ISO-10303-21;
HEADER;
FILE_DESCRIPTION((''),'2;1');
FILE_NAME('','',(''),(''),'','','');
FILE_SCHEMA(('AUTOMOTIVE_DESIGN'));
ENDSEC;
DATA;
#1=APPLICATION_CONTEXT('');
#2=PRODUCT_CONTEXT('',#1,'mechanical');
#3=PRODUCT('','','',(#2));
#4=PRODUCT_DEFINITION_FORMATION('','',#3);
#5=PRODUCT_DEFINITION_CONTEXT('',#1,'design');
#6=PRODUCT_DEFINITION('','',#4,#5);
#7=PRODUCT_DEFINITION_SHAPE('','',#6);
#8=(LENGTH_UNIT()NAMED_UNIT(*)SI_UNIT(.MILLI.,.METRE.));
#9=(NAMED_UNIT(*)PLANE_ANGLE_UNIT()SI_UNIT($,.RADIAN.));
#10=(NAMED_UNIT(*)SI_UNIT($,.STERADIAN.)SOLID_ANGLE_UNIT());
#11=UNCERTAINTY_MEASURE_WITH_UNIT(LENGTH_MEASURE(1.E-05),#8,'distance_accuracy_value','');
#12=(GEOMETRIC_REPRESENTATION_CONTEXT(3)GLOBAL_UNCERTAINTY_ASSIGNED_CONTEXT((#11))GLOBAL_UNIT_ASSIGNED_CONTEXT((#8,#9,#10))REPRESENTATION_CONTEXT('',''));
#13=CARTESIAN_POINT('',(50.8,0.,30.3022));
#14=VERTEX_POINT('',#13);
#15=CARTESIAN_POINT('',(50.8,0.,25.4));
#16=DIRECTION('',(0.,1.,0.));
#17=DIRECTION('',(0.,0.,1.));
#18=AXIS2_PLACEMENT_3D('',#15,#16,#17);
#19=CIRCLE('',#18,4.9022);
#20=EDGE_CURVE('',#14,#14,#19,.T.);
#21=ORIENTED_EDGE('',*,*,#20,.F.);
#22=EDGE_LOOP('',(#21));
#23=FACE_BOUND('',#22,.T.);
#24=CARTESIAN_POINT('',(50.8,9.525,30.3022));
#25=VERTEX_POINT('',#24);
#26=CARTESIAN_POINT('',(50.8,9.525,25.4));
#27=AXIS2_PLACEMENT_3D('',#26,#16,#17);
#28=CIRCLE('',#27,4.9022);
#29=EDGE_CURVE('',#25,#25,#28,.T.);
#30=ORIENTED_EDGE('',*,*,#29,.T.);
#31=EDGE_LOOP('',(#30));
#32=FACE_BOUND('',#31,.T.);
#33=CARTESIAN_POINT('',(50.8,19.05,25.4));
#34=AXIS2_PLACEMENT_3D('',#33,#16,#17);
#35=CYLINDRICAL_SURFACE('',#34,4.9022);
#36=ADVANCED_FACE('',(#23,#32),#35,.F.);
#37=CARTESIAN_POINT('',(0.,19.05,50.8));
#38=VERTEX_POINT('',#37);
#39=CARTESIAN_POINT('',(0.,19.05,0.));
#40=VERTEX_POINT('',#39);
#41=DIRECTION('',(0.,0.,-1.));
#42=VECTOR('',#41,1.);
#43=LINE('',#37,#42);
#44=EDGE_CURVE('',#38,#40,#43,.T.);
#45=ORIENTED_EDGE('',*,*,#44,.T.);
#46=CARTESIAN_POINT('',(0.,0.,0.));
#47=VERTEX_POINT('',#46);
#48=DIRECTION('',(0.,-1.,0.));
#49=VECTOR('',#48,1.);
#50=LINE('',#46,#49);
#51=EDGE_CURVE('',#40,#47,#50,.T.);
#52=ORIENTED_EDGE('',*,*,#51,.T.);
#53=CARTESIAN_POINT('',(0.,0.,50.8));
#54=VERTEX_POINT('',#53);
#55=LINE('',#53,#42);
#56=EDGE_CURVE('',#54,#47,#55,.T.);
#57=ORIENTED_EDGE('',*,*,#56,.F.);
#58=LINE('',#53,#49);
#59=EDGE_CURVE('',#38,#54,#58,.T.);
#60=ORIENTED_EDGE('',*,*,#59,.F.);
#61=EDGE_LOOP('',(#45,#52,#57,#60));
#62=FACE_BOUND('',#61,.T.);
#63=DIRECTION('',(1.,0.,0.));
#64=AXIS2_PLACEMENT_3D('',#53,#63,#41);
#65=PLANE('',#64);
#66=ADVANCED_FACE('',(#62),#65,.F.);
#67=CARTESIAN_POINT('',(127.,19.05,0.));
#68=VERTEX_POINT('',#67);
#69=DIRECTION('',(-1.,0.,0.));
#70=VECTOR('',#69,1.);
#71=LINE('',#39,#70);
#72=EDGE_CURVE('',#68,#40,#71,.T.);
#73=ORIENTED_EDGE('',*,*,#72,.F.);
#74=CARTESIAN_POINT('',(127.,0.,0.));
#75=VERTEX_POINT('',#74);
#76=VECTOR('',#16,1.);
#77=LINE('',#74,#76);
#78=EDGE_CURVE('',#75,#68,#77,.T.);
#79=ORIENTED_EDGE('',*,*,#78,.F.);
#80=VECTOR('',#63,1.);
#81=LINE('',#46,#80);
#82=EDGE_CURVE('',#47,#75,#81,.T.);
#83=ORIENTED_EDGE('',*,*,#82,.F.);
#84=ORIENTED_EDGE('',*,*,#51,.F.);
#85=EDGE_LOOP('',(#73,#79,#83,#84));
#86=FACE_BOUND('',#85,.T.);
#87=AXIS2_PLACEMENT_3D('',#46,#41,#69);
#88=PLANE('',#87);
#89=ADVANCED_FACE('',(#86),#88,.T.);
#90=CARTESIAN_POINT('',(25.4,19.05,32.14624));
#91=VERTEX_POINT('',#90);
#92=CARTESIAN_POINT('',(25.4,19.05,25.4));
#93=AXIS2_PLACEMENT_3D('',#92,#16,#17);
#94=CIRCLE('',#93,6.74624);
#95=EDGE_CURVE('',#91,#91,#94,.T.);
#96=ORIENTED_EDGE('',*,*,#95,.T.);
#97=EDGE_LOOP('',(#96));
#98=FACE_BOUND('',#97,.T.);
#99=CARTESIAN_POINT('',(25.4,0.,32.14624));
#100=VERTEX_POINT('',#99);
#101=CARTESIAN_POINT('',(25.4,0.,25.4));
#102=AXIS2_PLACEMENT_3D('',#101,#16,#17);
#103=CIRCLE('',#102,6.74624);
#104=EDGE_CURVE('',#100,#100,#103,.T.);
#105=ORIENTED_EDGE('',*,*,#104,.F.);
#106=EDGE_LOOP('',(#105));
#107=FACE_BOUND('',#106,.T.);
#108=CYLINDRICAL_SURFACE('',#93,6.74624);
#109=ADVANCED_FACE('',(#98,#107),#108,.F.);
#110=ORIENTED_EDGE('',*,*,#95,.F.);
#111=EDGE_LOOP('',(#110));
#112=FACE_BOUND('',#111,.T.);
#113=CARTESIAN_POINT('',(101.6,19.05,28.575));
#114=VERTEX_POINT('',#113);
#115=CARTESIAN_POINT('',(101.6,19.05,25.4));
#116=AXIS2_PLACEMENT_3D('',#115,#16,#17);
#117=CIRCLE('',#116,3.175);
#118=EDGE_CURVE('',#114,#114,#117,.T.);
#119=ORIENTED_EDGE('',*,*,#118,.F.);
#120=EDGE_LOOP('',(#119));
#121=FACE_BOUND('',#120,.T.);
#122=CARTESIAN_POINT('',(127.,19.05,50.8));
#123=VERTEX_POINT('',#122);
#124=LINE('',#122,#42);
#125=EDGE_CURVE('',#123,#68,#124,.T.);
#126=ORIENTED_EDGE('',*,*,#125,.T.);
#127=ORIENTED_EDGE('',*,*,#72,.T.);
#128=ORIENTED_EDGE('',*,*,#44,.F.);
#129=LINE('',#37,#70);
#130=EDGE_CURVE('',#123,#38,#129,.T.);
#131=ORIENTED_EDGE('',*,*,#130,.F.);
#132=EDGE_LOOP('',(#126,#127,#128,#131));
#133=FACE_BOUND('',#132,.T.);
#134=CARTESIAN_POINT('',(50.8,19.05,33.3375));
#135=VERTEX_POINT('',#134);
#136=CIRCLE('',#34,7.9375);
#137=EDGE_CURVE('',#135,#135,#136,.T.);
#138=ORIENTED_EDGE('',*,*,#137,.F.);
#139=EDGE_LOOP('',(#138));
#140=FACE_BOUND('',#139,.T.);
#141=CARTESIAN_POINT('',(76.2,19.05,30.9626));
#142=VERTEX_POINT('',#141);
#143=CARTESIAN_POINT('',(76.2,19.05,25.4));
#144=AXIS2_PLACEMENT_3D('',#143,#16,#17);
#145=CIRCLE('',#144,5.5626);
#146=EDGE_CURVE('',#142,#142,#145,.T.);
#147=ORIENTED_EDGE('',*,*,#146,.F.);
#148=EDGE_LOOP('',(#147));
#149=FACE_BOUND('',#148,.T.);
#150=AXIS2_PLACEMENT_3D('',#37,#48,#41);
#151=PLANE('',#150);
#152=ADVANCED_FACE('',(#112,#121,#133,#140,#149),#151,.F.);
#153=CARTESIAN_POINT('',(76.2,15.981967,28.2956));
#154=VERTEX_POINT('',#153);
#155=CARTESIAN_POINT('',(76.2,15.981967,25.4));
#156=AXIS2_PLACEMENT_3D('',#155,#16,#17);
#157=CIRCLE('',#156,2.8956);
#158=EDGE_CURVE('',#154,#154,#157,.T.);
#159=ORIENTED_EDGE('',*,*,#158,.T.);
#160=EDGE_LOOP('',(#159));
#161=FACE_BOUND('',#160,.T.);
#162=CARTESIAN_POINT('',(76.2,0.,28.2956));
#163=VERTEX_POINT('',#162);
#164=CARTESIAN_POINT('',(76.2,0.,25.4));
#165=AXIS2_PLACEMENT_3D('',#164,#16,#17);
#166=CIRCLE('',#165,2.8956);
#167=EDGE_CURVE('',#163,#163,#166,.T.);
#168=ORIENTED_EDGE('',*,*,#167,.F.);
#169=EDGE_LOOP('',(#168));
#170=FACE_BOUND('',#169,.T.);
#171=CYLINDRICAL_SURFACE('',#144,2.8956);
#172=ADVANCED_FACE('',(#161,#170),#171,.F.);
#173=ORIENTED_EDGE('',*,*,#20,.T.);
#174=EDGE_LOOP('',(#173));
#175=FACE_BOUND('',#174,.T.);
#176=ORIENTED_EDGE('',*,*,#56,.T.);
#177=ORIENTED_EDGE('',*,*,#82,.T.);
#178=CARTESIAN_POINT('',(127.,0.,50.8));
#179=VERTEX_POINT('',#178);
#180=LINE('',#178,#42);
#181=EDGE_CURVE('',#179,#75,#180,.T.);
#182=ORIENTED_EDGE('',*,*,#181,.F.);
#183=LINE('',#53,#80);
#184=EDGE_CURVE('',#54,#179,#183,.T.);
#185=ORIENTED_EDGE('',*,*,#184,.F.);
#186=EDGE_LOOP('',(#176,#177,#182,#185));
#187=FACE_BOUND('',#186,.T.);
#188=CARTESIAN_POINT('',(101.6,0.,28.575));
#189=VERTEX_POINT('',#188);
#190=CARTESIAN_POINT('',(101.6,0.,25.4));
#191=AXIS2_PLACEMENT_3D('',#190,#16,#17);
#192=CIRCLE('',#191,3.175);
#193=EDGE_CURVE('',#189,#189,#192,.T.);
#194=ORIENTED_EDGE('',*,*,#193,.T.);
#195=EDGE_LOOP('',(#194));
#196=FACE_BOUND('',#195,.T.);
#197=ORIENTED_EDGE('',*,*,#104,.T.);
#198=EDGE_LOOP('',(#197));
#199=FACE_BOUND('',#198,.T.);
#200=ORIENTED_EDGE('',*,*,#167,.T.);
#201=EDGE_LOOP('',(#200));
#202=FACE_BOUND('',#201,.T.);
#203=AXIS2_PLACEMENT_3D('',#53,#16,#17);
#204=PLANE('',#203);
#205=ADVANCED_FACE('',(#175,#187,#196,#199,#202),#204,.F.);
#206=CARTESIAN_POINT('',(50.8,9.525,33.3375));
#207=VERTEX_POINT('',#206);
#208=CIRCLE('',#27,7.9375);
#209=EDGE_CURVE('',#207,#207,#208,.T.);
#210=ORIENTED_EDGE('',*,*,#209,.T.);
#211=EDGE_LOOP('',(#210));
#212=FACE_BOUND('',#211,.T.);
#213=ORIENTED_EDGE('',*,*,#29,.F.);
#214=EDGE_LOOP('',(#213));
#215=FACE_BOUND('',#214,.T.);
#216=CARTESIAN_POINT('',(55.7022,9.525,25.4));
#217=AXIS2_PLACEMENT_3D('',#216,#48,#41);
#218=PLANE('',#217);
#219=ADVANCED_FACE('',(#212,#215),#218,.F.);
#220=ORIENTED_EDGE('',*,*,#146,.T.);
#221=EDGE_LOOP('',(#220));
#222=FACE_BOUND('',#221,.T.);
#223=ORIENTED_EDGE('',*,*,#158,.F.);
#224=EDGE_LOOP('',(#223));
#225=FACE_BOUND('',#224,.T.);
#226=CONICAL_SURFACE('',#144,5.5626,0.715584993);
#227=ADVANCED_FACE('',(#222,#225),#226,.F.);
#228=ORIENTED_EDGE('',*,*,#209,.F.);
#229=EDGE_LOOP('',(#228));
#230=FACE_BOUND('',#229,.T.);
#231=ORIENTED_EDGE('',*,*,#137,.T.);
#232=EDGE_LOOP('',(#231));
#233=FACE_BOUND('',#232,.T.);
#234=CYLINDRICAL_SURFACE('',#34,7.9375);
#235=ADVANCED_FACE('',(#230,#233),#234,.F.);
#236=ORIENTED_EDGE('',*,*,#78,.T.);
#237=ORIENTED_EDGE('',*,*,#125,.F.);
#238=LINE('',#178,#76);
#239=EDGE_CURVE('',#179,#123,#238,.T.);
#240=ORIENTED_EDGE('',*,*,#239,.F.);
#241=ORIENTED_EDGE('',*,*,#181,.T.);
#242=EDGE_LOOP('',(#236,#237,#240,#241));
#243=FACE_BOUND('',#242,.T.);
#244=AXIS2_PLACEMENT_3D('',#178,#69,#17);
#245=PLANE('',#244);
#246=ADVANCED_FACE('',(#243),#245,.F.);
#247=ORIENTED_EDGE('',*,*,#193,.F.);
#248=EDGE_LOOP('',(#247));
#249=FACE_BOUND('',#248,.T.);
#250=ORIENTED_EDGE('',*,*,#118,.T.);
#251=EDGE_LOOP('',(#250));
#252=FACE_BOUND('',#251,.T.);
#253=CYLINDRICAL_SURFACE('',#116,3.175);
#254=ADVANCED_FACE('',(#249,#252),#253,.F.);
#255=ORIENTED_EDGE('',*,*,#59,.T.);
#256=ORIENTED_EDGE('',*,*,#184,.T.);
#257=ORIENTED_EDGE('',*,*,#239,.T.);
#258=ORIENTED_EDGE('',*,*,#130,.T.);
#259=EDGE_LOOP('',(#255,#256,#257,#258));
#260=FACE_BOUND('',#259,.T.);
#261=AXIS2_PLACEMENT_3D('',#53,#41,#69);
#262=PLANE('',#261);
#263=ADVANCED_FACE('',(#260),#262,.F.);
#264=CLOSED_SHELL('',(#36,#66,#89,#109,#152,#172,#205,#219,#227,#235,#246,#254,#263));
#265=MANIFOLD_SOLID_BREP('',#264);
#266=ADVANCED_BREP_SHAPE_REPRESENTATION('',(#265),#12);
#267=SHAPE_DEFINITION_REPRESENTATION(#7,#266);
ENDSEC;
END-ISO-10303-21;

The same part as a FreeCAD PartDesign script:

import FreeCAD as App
import Part
import Sketcher

V = App.Vector
Q = App.Units.Quantity

doc = App.newDocument("Part")
body = doc.addObject("PartDesign::Body", "Body")

# Sketch on XY plane
sketch1 = body.newObject("Sketcher::SketchObject", "Sketch")
sketch1.AttachmentSupport = (doc.getObject("XY_Plane"), [""])
sketch1.MapMode = "FlatFace"
sketch1.addGeometry([
    Part.LineSegment(V(0, 19.05, 0), V(0, 0, 0)),
    Part.LineSegment(V(0, 0, 0), V(127, 0, 0)),
    Part.LineSegment(V(127, 0, 0), V(127, 19.05, 0)),
    Part.LineSegment(V(127, 19.05, 0), V(0, 19.05, 0)),
], False)
sketch1.addConstraint([
    Sketcher.Constraint("Coincident", 0, 2, 1, 1),
    Sketcher.Constraint("Coincident", 1, 2, 2, 1),
    Sketcher.Constraint("Coincident", 2, 2, 3, 1),
    Sketcher.Constraint("Coincident", 3, 2, 0, 1),
    Sketcher.Constraint("Vertical", 0),
    Sketcher.Constraint("Horizontal", 1),
    Sketcher.Constraint("Vertical", 2),
    Sketcher.Constraint("Horizontal", 3),
    Sketcher.Constraint("Coincident", 0, 2, -1, 1),
    Sketcher.Constraint("DistanceX", 1, 1, 1, 2, Q("5 in")),
    Sketcher.Constraint("DistanceY", 0, 2, 0, 1, Q("0.75 in")),
])
pad1 = body.newObject("PartDesign::Pad", "Pad")
pad1.Profile = sketch1
pad1.Length = Q("2 in")

# Sketch on XZ plane
sketch2 = body.newObject("Sketcher::SketchObject", "Sketch001")
sketch2.AttachmentSupport = (doc.getObject("XZ_Plane"), [""])
sketch2.MapMode = "FlatFace"
sketch2.AttachmentOffset = App.Placement(V(0, 0, -0.75 * 25.4), App.Rotation())
sketch2.addGeometry(Part.Circle(V(25.4, 25.4, 0), V(0, 0, 1), 6.74624), False)
sketch2.addConstraint([
    Sketcher.Constraint("DistanceX", -1, 1, 0, 3, Q("1 in")),
    Sketcher.Constraint("DistanceY", -1, 1, 0, 3, Q("1 in")),
    Sketcher.Constraint("Diameter", 0, Q("0.5312 in")),
])
doc.recompute()
hole = body.newObject("PartDesign::Hole", "Hole")
hole.Profile = sketch2
hole.ThreadType = "None"
hole.Diameter = Q("0.5312 in")
hole.DepthType = "ThroughAll"
hole.Reversed = True

# Sketch on XZ plane
sketch3 = body.newObject("Sketcher::SketchObject", "Sketch002")
sketch3.AttachmentSupport = (doc.getObject("XZ_Plane"), [""])
sketch3.MapMode = "FlatFace"
sketch3.AttachmentOffset = App.Placement(V(0, 0, -0.75 * 25.4), App.Rotation())
sketch3.addGeometry(Part.Circle(V(50.8, 25.4, 0), V(0, 0, 1), 4.9022), False)
sketch3.addConstraint([
    Sketcher.Constraint("Diameter", 0, Q("0.386 in")),
    Sketcher.Constraint("DistanceX", -1, 1, 0, 3, Q("2 in")),
    Sketcher.Constraint("DistanceY", -1, 1, 0, 3, Q("1 in")),
])
doc.recompute()
hole2 = body.newObject("PartDesign::Hole", "Hole001")
hole2.Profile = sketch3
hole2.ThreadType = "None"
hole2.Diameter = Q("0.386 in")
hole2.DepthType = "ThroughAll"
hole2.HoleCutType = "Counterbore"
hole2.HoleCutDiameter = Q("0.625 in")
hole2.HoleCutDepth = Q("0.375 in")
hole2.Reversed = True

# Sketch on XZ plane
sketch4 = body.newObject("Sketcher::SketchObject", "Sketch003")
sketch4.AttachmentSupport = (doc.getObject("XZ_Plane"), [""])
sketch4.MapMode = "FlatFace"
sketch4.AttachmentOffset = App.Placement(V(0, 0, -0.75 * 25.4), App.Rotation())
sketch4.addGeometry(Part.Circle(V(76.2, 25.4, 0), V(0, 0, 1), 2.8956), False)
sketch4.addConstraint([
    Sketcher.Constraint("Diameter", 0, Q("0.228 in")),
    Sketcher.Constraint("DistanceX", -1, 1, 0, 3, Q("3 in")),
    Sketcher.Constraint("DistanceY", -1, 1, 0, 3, Q("1 in")),
])
doc.recompute()
hole3 = body.newObject("PartDesign::Hole", "Hole002")
hole3.Profile = sketch4
hole3.ThreadType = "None"
hole3.Diameter = Q("0.228 in")
hole3.DepthType = "ThroughAll"
hole3.HoleCutType = "Countersink"
hole3.HoleCutDiameter = Q("0.438 in")
hole3.HoleCutCountersinkAngle = 82
hole3.Reversed = True

# Sketch on XZ plane
sketch5 = body.newObject("Sketcher::SketchObject", "Sketch004")
sketch5.AttachmentSupport = (doc.getObject("XZ_Plane"), [""])
sketch5.MapMode = "FlatFace"
sketch5.AttachmentOffset = App.Placement(V(0, 0, -0.75 * 25.4), App.Rotation())
sketch5.addGeometry(Part.Circle(V(101.6, 25.4, 0), V(0, 0, 1), 3.175), False)
sketch5.addConstraint([
    Sketcher.Constraint("Diameter", 0, Q("0.25 in")),
    Sketcher.Constraint("DistanceX", -1, 1, 0, 3, Q("4 in")),
    Sketcher.Constraint("DistanceY", -1, 1, 0, 3, Q("1 in")),
])
doc.recompute()
hole4 = body.newObject("PartDesign::Hole", "Hole003")
hole4.Profile = sketch5
hole4.ThreadType = "None"
hole4.Diameter = Q("0.25 in")
hole4.DepthType = "ThroughAll"
hole4.Reversed = True

doc.recompute()
